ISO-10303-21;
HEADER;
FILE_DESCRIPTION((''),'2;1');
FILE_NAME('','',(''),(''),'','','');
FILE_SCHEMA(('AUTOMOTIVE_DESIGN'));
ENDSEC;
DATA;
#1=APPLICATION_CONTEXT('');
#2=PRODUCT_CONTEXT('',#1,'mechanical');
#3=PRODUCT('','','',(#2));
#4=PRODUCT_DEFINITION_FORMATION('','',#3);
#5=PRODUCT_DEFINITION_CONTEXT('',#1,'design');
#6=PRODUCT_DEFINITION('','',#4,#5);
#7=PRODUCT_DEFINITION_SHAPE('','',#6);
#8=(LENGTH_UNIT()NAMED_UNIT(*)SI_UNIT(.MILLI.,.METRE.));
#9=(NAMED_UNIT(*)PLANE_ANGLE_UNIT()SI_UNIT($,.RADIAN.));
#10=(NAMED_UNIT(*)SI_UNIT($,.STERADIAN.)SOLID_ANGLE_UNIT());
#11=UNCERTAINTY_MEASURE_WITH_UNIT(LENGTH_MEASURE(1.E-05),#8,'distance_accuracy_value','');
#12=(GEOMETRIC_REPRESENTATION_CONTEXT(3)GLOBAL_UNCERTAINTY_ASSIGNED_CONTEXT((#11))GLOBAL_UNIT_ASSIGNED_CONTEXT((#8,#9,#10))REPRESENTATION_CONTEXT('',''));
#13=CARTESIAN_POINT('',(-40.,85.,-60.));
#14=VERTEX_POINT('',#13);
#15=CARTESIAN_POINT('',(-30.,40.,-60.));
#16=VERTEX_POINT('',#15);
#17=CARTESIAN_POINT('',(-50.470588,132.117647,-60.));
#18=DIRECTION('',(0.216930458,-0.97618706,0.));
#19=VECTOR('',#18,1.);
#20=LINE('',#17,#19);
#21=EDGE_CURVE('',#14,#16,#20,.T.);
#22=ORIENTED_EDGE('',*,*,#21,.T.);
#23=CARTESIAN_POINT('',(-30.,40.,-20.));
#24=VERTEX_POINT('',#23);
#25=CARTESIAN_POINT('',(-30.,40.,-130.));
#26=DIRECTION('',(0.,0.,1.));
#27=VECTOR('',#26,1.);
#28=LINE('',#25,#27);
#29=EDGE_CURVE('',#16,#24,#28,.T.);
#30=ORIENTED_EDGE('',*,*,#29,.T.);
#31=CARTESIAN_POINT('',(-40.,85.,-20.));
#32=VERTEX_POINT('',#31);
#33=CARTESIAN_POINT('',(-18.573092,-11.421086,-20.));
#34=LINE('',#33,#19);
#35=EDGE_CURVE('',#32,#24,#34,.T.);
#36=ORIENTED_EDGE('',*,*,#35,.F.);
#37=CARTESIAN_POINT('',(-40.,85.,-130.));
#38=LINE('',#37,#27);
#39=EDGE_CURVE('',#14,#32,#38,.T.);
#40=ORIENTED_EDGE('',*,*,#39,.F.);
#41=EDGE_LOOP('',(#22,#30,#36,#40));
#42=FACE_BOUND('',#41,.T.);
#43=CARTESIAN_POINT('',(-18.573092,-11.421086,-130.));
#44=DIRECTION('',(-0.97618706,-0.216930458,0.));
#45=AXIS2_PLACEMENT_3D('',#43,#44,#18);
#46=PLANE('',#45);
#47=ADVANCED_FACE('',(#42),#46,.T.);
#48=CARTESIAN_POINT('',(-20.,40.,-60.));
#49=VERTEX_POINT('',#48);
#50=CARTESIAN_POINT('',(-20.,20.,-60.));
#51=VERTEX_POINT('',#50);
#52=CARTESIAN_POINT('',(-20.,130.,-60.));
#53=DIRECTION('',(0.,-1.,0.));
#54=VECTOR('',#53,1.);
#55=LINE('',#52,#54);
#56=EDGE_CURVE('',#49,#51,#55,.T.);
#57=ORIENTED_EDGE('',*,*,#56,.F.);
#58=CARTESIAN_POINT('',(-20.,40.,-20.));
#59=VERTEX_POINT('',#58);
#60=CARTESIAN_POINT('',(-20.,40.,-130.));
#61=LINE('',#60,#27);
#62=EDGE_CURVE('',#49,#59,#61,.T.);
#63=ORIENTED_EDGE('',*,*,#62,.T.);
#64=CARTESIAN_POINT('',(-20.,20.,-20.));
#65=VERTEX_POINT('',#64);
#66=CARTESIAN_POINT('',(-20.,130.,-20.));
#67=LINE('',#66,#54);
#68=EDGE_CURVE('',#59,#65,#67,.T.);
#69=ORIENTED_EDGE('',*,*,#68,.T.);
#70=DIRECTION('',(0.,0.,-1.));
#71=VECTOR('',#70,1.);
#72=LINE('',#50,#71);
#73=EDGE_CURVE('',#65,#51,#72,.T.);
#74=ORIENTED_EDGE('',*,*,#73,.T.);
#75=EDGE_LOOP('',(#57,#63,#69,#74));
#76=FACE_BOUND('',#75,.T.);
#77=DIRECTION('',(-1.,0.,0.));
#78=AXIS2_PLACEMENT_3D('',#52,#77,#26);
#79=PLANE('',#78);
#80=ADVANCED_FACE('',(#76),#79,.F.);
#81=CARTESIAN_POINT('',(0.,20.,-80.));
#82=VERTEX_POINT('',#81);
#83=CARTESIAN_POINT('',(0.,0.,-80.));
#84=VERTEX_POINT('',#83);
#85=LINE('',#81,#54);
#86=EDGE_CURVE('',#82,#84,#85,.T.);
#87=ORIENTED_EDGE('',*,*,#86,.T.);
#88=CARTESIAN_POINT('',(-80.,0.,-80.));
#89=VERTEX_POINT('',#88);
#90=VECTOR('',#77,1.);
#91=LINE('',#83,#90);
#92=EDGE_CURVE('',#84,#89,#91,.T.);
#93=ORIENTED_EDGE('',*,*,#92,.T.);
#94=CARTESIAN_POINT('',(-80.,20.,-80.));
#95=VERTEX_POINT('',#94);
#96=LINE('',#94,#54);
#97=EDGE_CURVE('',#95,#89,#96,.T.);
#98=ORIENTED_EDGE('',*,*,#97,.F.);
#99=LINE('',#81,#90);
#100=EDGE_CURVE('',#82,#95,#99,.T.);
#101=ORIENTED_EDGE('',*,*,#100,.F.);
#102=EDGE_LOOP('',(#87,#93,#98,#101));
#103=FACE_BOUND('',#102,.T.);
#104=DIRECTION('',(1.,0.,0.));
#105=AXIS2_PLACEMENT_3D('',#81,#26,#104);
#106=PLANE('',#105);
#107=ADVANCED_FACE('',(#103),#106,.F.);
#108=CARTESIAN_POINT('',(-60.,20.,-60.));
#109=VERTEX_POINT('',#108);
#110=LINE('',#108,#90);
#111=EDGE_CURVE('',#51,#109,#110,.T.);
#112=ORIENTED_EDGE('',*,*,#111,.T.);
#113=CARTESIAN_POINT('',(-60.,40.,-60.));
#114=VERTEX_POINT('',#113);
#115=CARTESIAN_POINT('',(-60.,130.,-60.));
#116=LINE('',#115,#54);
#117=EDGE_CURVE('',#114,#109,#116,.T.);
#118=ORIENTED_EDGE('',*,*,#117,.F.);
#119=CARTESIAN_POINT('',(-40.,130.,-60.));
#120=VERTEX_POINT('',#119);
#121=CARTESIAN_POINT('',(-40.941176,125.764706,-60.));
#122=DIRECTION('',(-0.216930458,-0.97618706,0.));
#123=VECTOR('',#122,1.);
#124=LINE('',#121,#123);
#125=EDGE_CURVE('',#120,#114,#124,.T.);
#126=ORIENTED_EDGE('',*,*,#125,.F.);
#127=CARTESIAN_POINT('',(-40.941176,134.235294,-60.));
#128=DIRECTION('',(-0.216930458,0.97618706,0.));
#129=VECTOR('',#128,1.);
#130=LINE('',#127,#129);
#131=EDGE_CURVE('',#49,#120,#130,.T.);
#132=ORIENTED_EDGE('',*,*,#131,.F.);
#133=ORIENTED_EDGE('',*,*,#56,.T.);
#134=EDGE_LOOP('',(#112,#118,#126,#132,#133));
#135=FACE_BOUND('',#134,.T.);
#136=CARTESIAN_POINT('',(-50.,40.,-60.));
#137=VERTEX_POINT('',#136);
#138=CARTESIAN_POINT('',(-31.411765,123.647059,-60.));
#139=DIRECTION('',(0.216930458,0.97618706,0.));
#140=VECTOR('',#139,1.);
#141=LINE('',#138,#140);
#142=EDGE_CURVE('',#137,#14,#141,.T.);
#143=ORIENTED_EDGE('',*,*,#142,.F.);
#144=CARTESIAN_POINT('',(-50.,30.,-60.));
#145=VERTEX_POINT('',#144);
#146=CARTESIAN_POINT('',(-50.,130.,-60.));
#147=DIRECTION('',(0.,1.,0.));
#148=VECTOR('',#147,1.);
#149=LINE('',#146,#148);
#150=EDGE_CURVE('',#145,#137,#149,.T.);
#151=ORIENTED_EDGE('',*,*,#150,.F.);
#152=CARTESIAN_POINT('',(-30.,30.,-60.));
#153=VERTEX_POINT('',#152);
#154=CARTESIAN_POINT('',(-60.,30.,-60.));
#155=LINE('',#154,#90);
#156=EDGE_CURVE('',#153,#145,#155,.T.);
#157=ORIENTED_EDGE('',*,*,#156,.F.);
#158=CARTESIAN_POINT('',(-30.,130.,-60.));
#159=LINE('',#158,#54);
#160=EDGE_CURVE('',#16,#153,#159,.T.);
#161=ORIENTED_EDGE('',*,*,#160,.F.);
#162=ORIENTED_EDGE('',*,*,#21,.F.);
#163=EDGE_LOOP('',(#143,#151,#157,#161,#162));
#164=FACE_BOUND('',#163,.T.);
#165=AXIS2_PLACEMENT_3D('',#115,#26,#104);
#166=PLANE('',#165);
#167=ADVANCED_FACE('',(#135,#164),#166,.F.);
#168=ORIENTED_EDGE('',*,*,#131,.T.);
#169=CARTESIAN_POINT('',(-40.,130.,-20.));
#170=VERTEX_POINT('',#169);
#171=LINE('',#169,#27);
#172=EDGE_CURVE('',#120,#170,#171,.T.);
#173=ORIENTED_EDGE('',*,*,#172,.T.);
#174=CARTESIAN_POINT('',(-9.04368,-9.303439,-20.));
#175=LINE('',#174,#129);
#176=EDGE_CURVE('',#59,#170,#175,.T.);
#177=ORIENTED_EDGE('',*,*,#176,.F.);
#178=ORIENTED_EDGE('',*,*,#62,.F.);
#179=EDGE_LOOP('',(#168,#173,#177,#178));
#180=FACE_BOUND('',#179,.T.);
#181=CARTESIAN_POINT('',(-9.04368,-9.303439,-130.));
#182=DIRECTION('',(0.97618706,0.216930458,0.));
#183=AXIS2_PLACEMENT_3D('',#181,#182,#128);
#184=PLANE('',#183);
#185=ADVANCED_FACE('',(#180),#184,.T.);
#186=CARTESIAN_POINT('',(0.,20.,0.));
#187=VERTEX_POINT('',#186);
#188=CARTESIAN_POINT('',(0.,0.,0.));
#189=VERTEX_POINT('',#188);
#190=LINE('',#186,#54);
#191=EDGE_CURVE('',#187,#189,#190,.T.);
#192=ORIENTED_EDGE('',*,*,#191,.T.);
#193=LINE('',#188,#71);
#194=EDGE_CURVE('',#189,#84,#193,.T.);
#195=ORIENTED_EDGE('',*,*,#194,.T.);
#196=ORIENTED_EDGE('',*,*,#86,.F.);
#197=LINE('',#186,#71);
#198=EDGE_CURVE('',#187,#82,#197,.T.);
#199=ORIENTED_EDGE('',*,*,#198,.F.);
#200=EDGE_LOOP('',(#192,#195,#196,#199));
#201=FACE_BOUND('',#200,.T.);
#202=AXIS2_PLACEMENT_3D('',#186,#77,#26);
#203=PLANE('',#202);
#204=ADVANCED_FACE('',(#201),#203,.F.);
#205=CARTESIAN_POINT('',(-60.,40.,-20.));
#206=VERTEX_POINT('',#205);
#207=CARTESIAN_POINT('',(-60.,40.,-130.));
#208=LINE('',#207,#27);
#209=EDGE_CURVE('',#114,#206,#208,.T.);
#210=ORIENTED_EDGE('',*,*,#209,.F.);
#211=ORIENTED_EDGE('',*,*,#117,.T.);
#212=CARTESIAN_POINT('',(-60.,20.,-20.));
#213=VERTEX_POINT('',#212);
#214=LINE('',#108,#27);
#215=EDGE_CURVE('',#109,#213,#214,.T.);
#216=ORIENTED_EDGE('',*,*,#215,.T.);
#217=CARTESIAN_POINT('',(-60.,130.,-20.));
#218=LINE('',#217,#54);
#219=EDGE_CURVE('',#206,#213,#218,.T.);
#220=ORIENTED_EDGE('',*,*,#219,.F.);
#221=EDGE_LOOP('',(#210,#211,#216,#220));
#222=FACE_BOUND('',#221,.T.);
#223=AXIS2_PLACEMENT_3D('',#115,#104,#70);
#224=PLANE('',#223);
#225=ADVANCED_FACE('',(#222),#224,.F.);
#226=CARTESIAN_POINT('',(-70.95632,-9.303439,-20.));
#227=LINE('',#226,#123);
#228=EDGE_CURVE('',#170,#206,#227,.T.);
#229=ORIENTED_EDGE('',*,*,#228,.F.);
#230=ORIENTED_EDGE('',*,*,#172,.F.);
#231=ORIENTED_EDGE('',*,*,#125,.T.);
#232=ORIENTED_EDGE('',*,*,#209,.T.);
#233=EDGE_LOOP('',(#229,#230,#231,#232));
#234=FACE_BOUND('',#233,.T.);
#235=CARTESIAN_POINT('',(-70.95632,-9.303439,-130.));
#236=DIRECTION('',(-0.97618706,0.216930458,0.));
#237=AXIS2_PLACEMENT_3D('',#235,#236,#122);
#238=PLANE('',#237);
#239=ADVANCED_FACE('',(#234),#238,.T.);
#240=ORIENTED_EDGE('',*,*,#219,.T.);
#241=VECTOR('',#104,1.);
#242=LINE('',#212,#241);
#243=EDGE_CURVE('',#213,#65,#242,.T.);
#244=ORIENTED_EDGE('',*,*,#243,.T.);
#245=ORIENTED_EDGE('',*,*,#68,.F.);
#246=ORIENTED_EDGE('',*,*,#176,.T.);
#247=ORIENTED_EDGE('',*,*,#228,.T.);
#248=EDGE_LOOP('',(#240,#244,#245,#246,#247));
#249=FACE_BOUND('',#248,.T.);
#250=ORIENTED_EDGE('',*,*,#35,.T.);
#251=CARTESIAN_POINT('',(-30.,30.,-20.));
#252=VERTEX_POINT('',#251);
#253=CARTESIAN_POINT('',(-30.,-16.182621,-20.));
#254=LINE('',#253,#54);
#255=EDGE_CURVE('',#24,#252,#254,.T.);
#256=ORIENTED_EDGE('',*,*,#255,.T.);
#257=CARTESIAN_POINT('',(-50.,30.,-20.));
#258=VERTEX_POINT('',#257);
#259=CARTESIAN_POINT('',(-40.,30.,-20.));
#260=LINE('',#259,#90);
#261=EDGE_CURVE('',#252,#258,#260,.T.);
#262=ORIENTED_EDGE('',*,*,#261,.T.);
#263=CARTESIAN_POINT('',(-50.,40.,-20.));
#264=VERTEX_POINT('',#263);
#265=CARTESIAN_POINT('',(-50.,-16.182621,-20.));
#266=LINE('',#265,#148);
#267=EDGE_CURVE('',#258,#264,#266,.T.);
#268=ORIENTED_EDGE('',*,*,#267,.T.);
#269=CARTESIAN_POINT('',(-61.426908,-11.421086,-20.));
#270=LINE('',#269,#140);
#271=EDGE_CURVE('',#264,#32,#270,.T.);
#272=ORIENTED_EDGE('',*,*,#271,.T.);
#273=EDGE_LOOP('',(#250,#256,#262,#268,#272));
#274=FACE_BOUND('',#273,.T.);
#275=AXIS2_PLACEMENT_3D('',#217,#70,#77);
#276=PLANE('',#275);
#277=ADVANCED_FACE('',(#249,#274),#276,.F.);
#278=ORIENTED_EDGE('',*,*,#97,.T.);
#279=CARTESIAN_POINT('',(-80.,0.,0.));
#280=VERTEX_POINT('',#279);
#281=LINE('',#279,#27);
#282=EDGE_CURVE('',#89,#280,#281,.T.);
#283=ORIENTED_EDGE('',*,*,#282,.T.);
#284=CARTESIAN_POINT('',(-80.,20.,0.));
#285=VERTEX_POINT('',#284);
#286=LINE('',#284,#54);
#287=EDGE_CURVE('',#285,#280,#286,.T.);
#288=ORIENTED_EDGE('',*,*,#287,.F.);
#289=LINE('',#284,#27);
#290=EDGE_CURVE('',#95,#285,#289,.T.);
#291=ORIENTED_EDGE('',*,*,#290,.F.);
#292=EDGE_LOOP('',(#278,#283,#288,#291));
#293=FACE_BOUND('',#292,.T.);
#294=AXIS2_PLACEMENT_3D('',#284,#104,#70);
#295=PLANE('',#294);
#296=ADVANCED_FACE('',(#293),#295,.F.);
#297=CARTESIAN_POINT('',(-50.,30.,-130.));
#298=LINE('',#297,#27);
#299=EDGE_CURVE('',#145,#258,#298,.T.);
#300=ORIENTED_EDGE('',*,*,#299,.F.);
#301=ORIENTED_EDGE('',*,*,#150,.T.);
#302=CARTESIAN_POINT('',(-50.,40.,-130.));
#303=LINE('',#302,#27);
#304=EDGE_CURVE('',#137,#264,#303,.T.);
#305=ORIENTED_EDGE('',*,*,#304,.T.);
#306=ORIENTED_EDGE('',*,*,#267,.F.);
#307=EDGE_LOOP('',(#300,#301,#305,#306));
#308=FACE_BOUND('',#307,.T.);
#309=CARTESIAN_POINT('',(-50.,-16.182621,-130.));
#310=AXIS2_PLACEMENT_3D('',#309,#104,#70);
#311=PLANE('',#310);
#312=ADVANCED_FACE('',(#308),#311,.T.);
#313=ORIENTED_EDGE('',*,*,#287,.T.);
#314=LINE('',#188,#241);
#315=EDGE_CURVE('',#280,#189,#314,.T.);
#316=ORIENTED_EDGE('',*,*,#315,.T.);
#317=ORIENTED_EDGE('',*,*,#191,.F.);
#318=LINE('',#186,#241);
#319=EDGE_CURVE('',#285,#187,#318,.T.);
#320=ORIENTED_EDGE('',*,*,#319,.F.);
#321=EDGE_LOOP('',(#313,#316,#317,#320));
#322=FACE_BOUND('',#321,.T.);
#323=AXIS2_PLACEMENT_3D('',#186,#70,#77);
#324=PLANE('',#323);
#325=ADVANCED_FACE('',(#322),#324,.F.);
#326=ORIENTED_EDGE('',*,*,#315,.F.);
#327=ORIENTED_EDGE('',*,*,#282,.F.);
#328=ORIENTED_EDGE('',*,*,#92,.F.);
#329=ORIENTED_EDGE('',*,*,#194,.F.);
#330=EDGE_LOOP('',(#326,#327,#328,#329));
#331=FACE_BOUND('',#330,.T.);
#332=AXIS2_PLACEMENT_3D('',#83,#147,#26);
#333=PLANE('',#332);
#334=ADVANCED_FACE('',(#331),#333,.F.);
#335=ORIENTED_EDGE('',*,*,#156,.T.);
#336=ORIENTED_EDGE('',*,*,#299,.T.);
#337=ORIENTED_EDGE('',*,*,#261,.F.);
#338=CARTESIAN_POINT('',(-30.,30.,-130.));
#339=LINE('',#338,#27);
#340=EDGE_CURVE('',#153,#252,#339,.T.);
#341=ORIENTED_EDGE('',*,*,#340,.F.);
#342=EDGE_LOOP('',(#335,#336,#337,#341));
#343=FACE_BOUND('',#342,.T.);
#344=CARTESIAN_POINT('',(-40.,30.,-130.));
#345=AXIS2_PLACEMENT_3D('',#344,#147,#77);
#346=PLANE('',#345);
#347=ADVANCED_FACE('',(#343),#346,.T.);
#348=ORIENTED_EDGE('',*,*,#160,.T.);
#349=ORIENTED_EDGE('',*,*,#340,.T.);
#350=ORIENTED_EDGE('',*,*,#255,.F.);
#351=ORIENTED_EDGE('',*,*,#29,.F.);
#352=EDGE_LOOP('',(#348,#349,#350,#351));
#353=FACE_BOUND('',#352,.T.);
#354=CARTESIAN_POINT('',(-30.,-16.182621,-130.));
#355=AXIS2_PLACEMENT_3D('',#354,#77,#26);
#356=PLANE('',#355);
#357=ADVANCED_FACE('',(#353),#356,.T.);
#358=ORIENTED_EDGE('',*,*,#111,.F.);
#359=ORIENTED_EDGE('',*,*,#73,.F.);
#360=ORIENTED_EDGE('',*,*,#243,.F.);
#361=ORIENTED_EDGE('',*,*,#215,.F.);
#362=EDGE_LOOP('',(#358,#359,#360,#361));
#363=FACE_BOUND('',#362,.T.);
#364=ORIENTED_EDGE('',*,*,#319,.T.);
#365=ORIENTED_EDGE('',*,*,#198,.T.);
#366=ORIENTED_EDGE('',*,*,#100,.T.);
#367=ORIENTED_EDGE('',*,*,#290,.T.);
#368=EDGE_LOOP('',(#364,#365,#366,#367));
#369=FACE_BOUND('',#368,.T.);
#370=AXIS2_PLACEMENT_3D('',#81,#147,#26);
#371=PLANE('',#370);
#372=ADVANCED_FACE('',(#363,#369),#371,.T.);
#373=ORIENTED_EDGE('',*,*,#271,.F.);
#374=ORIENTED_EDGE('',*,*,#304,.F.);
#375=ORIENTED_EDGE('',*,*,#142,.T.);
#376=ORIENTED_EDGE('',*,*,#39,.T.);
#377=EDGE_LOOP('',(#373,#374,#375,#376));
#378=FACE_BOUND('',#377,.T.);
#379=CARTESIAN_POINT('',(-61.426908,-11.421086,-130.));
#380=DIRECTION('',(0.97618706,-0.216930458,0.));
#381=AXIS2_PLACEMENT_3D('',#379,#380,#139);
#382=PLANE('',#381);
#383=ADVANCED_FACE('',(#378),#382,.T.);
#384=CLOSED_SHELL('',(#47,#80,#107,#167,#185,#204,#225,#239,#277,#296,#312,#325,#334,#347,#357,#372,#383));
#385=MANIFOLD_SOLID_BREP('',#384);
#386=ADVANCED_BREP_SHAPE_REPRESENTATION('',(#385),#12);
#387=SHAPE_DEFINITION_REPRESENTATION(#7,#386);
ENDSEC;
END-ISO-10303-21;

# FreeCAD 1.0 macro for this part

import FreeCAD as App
import Part
import Sketcher

V = App.Vector

doc = App.newDocument("Part")
params = doc.addObject("Spreadsheet::Sheet", "Params")
for row, (alias, value) in enumerate([
    ("sketch1_width", "80 mm"),
    ("pad1_length", "20 mm"),
    ("sketch2_width", "40 mm"),
    ("pad2_length", "110 mm"),
    ("sketch3_width", "20 mm"),
    ("sketch3_height", "90 mm"),
    ("sketch3_height2", "10 mm"),
    ("pocket1_length", "110 mm"),
], start=1):
    params.set(f"A{row}", alias)
    params.set(f"B{row}", "=" + value)
    params.setAlias(f"B{row}", alias)

body = doc.addObject("PartDesign::Body", "Body")

# Sketch on XZ plane
sketch1 = body.newObject("Sketcher::SketchObject", "Sketch")
sketch1.AttachmentSupport = (doc.getObject("XZ_Plane"), [""])
sketch1.MapMode = "FlatFace"
sketch1.addGeometry(Part.LineSegment(V(-80, -80, 0), V(-80, 0, 0)), False)
sketch1.addGeometry(Part.LineSegment(V(-80, 0, 0), V(0, 0, 0)), False)
sketch1.addGeometry(Part.LineSegment(V(0, 0, 0), V(0, -80, 0)), False)
sketch1.addGeometry(Part.LineSegment(V(0, -80, 0), V(-80, -80, 0)), False)
sketch1.addConstraint(Sketcher.Constraint("Coincident", 0, 2, 1, 1))
sketch1.addConstraint(Sketcher.Constraint("Coincident", 1, 2, 2, 1))
sketch1.addConstraint(Sketcher.Constraint("Coincident", 2, 2, 3, 1))
sketch1.addConstraint(Sketcher.Constraint("Coincident", 3, 2, 0, 1))
sketch1.addConstraint(Sketcher.Constraint("Vertical", 0))
sketch1.addConstraint(Sketcher.Constraint("Horizontal", 1))
sketch1.addConstraint(Sketcher.Constraint("Vertical", 2))
sketch1.addConstraint(Sketcher.Constraint("Horizontal", 3))
sketch1.addConstraint(Sketcher.Constraint("Coincident", 1, 2, -1, 1))
sketch1.addConstraint(Sketcher.Constraint("Equal", 3, 0))
sketch1.addConstraint(Sketcher.Constraint("DistanceX", 1, 1, 1, 2, 80.0))
sketch1.setExpression("Constraints[10]", "Params.sketch1_width")
pad1 = body.newObject("PartDesign::Pad", "Pad")
pad1.Profile = sketch1
pad1.setExpression("Length", "Params.pad1_length")
pad1.Reversed = True

# Sketch on XZ plane
sketch2 = body.newObject("Sketcher::SketchObject", "Sketch001")
sketch2.AttachmentSupport = (doc.getObject("XZ_Plane"), [""])
sketch2.MapMode = "FlatFace"
sketch2.AttachmentOffset = App.Placement(V(0, 0, -20), App.Rotation())
sketch2.addGeometry(Part.LineSegment(V(-60, -60, 0), V(-60, -20, 0)), False)
sketch2.addGeometry(Part.LineSegment(V(-60, -20, 0), V(-20, -20, 0)), False)
sketch2.addGeometry(Part.LineSegment(V(-20, -20, 0), V(-20, -60, 0)), False)
sketch2.addGeometry(Part.LineSegment(V(-20, -60, 0), V(-60, -60, 0)), False)
sketch2.addConstraint(Sketcher.Constraint("Coincident", 0, 2, 1, 1))
sketch2.addConstraint(Sketcher.Constraint("Coincident", 1, 2, 2, 1))
sketch2.addConstraint(Sketcher.Constraint("Coincident", 2, 2, 3, 1))
sketch2.addConstraint(Sketcher.Constraint("Coincident", 3, 2, 0, 1))
sketch2.addConstraint(Sketcher.Constraint("Vertical", 0))
sketch2.addConstraint(Sketcher.Constraint("Horizontal", 1))
sketch2.addConstraint(Sketcher.Constraint("Vertical", 2))
sketch2.addConstraint(Sketcher.Constraint("Horizontal", 3))
sketch2.addConstraint(Sketcher.Constraint("Equal", 3, 0))
sketch2.addConstraint(Sketcher.Constraint("DistanceX", 1, 1, 1, 2, 40.0))
sketch2.addConstraint(Sketcher.Constraint("DistanceX", 0, 2, -1, 1, 60.0))
sketch2.addConstraint(Sketcher.Constraint("DistanceY", 0, 2, -1, 1, 20.0))
sketch2.setExpression("Constraints[9]", "Params.sketch2_width")
pad2 = body.newObject("PartDesign::Pad", "Pad001")
pad2.Profile = sketch2
pad2.setExpression("Length", "Params.pad2_length")
pad2.Reversed = True

# Sketch on XY plane
sketch3 = body.newObject("Sketcher::SketchObject", "Sketch002")
sketch3.AttachmentSupport = (doc.getObject("XY_Plane"), [""])
sketch3.MapMode = "FlatFace"
sketch3.AttachmentOffset = App.Placement(V(0, 0, -20), App.Rotation())
sketch3.addGeometry(Part.LineSegment(V(-60, 40, 0), V(-40, 130, 0)), False)
sketch3.addGeometry(Part.LineSegment(V(-40, 130, 0), V(-60, 130, 0)), False)
sketch3.addGeometry(Part.LineSegment(V(-60, 130, 0), V(-60, 40, 0)), False)
sketch3.addGeometry(Part.LineSegment(V(-40, 130, 0), V(-20, 40, 0)), False)
sketch3.addGeometry(Part.LineSegment(V(-20, 40, 0), V(-20, 130, 0)), False)
sketch3.addGeometry(Part.LineSegment(V(-20, 130, 0), V(-40, 130, 0)), False)
sketch3.addGeometry(Part.LineSegment(V(-40, 85, 0), V(-50, 40, 0)), False)
sketch3.addGeometry(Part.LineSegment(V(-50, 40, 0), V(-50, 30, 0)), False)
sketch3.addGeometry(Part.LineSegment(V(-50, 30, 0), V(-30, 30, 0)), False)
sketch3.addGeometry(Part.LineSegment(V(-30, 30, 0), V(-30, 40, 0)), False)
sketch3.addGeometry(Part.LineSegment(V(-30, 40, 0), V(-40, 85, 0)), False)
sketch3.addConstraint(Sketcher.Constraint("Coincident", 0, 2, 1, 1))
sketch3.addConstraint(Sketcher.Constraint("Coincident", 1, 2, 2, 1))
sketch3.addConstraint(Sketcher.Constraint("Coincident", 2, 2, 0, 1))
sketch3.addConstraint(Sketcher.Constraint("Coincident", 3, 2, 4, 1))
sketch3.addConstraint(Sketcher.Constraint("Coincident", 4, 2, 5, 1))
sketch3.addConstraint(Sketcher.Constraint("Coincident", 5, 2, 3, 1))
sketch3.addConstraint(Sketcher.Constraint("Coincident", 6, 2, 7, 1))
sketch3.addConstraint(Sketcher.Constraint("Coincident", 7, 2, 8, 1))
sketch3.addConstraint(Sketcher.Constraint("Coincident", 8, 2, 9, 1))
sketch3.addConstraint(Sketcher.Constraint("Coincident", 9, 2, 10, 1))
sketch3.addConstraint(Sketcher.Constraint("Coincident", 10, 2, 6, 1))
sketch3.addConstraint(Sketcher.Constraint("Horizontal", 1))
sketch3.addConstraint(Sketcher.Constraint("Vertical", 2))
sketch3.addConstraint(Sketcher.Constraint("Vertical", 4))
sketch3.addConstraint(Sketcher.Constraint("Horizontal", 5))
sketch3.addConstraint(Sketcher.Constraint("Vertical", 7))
sketch3.addConstraint(Sketcher.Constraint("Horizontal", 8))
sketch3.addConstraint(Sketcher.Constraint("Vertical", 9))
sketch3.addConstraint(Sketcher.Constraint("Coincident", 5, 2, 0, 2))
sketch3.addConstraint(Sketcher.Constraint("Parallel", 0, 6))
sketch3.addConstraint(Sketcher.Constraint("Parallel", 3, 10))
sketch3.addConstraint(Sketcher.Constraint("Horizontal", 2, 2, 3, 2))
sketch3.addConstraint(Sketcher.Constraint("Horizontal", 3, 2, 6, 2))
sketch3.addConstraint(Sketcher.Constraint("Horizontal", 6, 2, 9, 2))
sketch3.addConstraint(Sketcher.Constraint("Vertical", 5, 2, 10, 2))
sketch3.addConstraint(Sketcher.Constraint("Equal", 1, 5))
sketch3.addConstraint(Sketcher.Constraint("Equal", 5, 8))
sketch3.addConstraint(Sketcher.Constraint("DistanceX", 1, 2, 1, 1, 20.0))
sketch3.addConstraint(Sketcher.Constraint("DistanceY", 2, 2, 2, 1, 90.0))
sketch3.addConstraint(Sketcher.Constraint("DistanceY", 7, 2, 7, 1, 10.0))
sketch3.addConstraint(Sketcher.Constraint("DistanceX", 0, 2, -1, 1, 40.0))
sketch3.addConstraint(Sketcher.Constraint("DistanceY", -1, 1, 0, 2, 130.0))
sketch3.setExpression("Constraints[27]", "Params.sketch3_width")
sketch3.setExpression("Constraints[28]", "Params.sketch3_height")
sketch3.setExpression("Constraints[29]", "Params.sketch3_height2")
pocket1 = body.newObject("PartDesign::Pocket", "Pocket")
pocket1.Profile = sketch3
pocket1.setExpression("Length", "Params.pocket1_length")

doc.recompute()
